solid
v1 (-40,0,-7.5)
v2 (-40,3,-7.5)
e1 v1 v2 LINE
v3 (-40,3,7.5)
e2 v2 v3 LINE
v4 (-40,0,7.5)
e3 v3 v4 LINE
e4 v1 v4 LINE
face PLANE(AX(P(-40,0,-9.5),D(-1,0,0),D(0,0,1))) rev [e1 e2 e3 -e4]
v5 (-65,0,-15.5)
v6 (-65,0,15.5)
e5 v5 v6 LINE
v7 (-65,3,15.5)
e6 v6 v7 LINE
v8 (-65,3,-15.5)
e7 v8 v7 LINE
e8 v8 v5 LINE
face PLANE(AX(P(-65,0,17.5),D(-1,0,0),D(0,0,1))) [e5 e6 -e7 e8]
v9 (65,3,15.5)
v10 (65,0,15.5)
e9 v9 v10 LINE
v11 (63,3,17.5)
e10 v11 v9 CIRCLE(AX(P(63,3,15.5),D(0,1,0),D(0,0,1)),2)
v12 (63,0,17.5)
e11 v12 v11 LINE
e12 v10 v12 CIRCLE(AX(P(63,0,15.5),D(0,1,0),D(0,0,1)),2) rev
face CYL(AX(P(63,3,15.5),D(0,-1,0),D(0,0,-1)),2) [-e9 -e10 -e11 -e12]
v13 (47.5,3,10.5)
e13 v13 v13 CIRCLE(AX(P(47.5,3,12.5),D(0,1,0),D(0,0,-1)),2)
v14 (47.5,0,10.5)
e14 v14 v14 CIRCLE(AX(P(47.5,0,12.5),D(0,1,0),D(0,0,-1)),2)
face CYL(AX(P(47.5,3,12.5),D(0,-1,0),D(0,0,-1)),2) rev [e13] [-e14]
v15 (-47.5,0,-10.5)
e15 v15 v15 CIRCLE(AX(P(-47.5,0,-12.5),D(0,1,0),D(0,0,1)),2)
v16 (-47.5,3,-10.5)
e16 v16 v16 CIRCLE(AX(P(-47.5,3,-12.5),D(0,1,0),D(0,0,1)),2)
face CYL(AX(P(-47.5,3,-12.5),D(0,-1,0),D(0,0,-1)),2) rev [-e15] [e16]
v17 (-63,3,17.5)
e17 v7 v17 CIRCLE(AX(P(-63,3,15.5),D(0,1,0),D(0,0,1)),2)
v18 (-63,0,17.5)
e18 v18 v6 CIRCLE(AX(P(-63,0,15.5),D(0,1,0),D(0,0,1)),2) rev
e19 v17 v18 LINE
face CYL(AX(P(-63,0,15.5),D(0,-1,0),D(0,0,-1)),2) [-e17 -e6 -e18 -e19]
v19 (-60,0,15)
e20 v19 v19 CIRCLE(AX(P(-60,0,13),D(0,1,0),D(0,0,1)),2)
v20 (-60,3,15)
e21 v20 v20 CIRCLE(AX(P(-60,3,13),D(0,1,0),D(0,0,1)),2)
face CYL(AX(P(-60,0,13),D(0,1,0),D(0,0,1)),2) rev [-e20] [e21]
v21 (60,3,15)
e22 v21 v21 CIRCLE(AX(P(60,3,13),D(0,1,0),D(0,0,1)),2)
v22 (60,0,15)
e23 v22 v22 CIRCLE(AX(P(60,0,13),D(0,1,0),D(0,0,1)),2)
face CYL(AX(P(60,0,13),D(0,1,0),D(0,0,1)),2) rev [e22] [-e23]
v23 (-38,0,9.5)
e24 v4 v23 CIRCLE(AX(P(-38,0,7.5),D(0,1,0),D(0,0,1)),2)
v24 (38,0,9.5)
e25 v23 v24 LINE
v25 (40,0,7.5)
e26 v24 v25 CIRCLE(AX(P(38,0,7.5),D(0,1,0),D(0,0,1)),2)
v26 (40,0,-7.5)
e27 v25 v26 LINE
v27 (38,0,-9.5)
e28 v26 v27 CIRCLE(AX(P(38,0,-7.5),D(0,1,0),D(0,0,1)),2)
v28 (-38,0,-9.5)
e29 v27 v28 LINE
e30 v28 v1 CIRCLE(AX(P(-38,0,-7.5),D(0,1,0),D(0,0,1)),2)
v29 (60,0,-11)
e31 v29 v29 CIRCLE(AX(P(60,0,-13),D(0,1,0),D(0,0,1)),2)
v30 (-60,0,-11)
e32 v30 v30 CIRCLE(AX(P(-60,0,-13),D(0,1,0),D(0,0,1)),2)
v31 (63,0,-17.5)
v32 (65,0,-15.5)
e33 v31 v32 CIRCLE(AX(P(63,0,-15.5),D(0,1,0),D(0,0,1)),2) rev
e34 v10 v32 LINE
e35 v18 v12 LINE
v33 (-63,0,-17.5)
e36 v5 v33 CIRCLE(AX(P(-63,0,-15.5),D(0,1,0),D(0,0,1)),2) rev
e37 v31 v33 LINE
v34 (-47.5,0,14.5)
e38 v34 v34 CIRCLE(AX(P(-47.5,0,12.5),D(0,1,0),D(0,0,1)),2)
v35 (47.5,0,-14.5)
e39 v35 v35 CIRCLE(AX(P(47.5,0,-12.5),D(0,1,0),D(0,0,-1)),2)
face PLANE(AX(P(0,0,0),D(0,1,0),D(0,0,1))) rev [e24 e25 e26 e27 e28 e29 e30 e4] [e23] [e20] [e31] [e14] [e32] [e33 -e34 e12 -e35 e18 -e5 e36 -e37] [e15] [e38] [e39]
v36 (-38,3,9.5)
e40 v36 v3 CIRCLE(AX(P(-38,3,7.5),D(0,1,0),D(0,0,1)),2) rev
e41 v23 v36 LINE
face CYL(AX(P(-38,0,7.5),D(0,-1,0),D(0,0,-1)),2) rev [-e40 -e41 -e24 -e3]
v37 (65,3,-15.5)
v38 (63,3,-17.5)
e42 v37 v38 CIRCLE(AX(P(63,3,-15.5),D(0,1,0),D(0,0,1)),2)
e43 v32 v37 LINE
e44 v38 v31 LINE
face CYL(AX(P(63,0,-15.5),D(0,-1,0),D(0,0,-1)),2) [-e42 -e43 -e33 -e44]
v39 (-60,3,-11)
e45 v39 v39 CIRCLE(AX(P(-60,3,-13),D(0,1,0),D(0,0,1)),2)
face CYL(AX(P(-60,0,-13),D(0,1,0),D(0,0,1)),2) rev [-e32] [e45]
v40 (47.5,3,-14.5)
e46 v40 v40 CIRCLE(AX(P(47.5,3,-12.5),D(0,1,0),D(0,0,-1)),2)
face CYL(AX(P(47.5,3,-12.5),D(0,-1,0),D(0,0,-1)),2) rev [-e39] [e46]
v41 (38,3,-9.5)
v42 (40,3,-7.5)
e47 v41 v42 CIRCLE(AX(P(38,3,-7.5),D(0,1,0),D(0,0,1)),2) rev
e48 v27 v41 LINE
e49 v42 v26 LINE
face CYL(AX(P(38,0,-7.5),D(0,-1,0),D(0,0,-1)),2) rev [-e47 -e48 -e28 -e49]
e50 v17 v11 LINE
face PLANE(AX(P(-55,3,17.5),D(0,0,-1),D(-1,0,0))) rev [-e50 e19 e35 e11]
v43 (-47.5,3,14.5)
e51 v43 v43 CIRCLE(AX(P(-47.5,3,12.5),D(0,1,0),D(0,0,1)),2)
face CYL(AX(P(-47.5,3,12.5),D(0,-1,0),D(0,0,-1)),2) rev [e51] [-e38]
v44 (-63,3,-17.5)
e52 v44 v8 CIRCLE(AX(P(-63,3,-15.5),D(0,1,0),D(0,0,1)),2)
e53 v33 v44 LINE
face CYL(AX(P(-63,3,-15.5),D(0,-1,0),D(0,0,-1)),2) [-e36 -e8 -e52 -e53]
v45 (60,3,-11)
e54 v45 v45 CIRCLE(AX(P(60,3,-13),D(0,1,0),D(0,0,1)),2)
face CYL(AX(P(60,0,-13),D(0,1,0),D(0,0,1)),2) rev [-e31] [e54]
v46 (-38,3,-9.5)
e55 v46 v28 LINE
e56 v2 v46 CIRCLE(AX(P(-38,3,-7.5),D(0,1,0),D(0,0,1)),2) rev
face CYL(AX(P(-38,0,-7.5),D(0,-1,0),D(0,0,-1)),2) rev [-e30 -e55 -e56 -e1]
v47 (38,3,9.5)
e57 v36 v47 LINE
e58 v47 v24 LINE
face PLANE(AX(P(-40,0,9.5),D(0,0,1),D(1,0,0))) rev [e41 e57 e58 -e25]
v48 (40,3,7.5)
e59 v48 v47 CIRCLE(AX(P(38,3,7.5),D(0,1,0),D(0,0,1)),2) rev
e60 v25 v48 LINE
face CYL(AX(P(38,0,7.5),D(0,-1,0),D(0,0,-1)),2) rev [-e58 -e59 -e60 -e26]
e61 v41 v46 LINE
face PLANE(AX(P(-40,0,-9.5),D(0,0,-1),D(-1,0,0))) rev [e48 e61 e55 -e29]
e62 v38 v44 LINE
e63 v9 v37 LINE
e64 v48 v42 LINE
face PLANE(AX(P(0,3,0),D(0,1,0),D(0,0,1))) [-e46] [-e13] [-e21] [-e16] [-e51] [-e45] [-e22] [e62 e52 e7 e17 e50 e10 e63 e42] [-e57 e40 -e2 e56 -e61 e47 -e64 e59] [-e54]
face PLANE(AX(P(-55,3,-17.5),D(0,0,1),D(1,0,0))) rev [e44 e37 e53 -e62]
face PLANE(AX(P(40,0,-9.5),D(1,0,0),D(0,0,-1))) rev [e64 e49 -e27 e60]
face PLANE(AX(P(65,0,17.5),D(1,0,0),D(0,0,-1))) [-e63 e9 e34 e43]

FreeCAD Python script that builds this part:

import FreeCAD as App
import Part
import Sketcher
from FreeCAD import Vector


def edges_at(feature, points):
    """Names of the edges that pass closest to the given points."""
    edges = feature.Shape.Edges
    near = lambda p: min(range(len(edges)), key=lambda i: edges[i].distToShape(Part.Vertex(*p))[0])
    return sorted({f"Edge{near(p) + 1}" for p in points})


def add_polygon(sketch, points):
    """Adds a closed chain of lines whose ends are joined by coincident constraints."""
    first, n = sketch.GeometryCount, len(points)
    for a, b in zip(points, points[1:] + points[:1]):
        sketch.addGeometry(Part.LineSegment(App.Vector(*a, 0), App.Vector(*b, 0)), False)
    for i in range(n):
        sketch.addConstraint(Sketcher.Constraint("Coincident", first + i, 2, first + (i + 1) % n, 1))

doc = App.newDocument("Part")
body = doc.addObject("PartDesign::Body", "Body")

sketch1 = doc.addObject("Sketcher::SketchObject", "Sketch")
body.addObject(sketch1)
sketch1.AttachmentSupport = (doc.XZ_Plane, [""])
sketch1.MapMode = "FlatFace"
add_polygon(sketch1, [(-55, -17.5), (-55, 17.5), (55, 17.5), (55, -17.5)])
sketch1.addGeometry(Part.Circle(Vector(-47.5, 12.5, 0), Vector(0, 0, 1), 2), False)
sketch1.addGeometry(Part.Circle(Vector(47.5, 12.5, 0), Vector(0, 0, 1), 2), False)
sketch1.addGeometry(Part.Circle(Vector(-47.5, -12.5, 0), Vector(0, 0, 1), 2), False)
sketch1.addGeometry(Part.Circle(Vector(47.5, -12.5, 0), Vector(0, 0, 1), 2), False)
sketch1.addConstraint([
    Sketcher.Constraint("Vertical", 0),
    Sketcher.Constraint("Horizontal", 1),
    Sketcher.Constraint("Vertical", 2),
    Sketcher.Constraint("Horizontal", 3),
    Sketcher.Constraint("Equal", 4, 5),
    Sketcher.Constraint("Equal", 5, 6),
    Sketcher.Constraint("Equal", 6, 7),
    Sketcher.Constraint("Symmetric", 5, 3, 6, 3, -1, 1),
    Sketcher.Constraint("Symmetric", 4, 3, 7, 3, -1, 1),
    Sketcher.Constraint("Symmetric", 0, 2, 2, 2, -1, 1),
    Sketcher.Constraint("Symmetric", 4, 3, 5, 3, -2),
    Sketcher.Constraint("Diameter", 4, 4.0),
    Sketcher.Constraint("DistanceX", 1, 1, 1, 2, 110.0),
    Sketcher.Constraint("DistanceY", 0, 1, 0, 2, 35.0),
    Sketcher.Constraint("DistanceX", 4, 3, 5, 3, 95.0),
    Sketcher.Constraint("DistanceY", 6, 3, 4, 3, 25.0),
])
pad1 = doc.addObject("PartDesign::Pad", "Pad")
body.addObject(pad1)
pad1.Profile = sketch1
pad1.Length = 3
pad1.Reversed = True

sketch2 = doc.addObject("Sketcher::SketchObject", "Sketch001")
body.addObject(sketch2)
sketch2.AttachmentSupport = (doc.XZ_Plane, [""])
sketch2.MapMode = "FlatFace"
sketch2.AttachmentOffset = App.Placement(Vector(0, 0, -3), App.Rotation())
add_polygon(sketch2, [(55, -17.5), (55, 17.5), (65, 17.5), (65, -17.5)])
sketch2.addGeometry(Part.Circle(Vector(60, 13, 0), Vector(0, 0, 1), 2), False)
sketch2.addGeometry(Part.Circle(Vector(60, -13, 0), Vector(0, 0, 1), 2), False)
add_polygon(sketch2, [(-65, -17.5), (-65, 17.5), (-55, 17.5), (-55, -17.5)])
sketch2.addGeometry(Part.Circle(Vector(-60, 13, 0), Vector(0, 0, 1), 2), False)
sketch2.addGeometry(Part.Circle(Vector(-60, -13, 0), Vector(0, 0, 1), 2), False)
sketch2.addConstraint([
    Sketcher.Constraint("Vertical", 0),
    Sketcher.Constraint("Horizontal", 1),
    Sketcher.Constraint("Vertical", 2),
    Sketcher.Constraint("Horizontal", 3),
    Sketcher.Constraint("Vertical", 6),
    Sketcher.Constraint("Horizontal", 7),
    Sketcher.Constraint("Vertical", 8),
    Sketcher.Constraint("Horizontal", 9),
    Sketcher.Constraint("Equal", 4, 5),
    Sketcher.Constraint("Equal", 5, 10),
    Sketcher.Constraint("Equal", 10, 11),
    Sketcher.Constraint("Symmetric", 5, 3, 10, 3, -1, 1),
    Sketcher.Constraint("Symmetric", 4, 3, 11, 3, -1, 1),
    Sketcher.Constraint("Symmetric", 2, 2, 6, 2, -1, 1),
    Sketcher.Constraint("Symmetric", 0, 2, 8, 2, -1, 1),
    Sketcher.Constraint("Symmetric", 4, 3, 10, 3, -2),
    Sketcher.Constraint("Horizontal", 1, 2, 6, 2),
    Sketcher.Constraint("Diameter", 4, 4.0),
    Sketcher.Constraint("DistanceX", 1, 1, 1, 2, 10.0),
    Sketcher.Constraint("DistanceY", 0, 1, 0, 2, 35.0),
    Sketcher.Constraint("DistanceX", -1, 1, 4, 3, 60.0),
    Sketcher.Constraint("DistanceY", -1, 1, 4, 3, 13.0),
    Sketcher.Constraint("DistanceX", -1, 1, 0, 2, 55.0),
])
pad2 = doc.addObject("PartDesign::Pad", "Pad001")
body.addObject(pad2)
pad2.Profile = sketch2
pad2.Length = 3

sketch3 = doc.addObject("Sketcher::SketchObject", "Sketch002")
body.addObject(sketch3)
sketch3.AttachmentSupport = (doc.XZ_Plane, [""])
sketch3.MapMode = "FlatFace"
sketch3.AttachmentOffset = App.Placement(Vector(0, 0, -3), App.Rotation())
add_polygon(sketch3, [(-40, -10), (-40, 10), (40, 10), (40, -10)])
sketch3.addConstraint([
    Sketcher.Constraint("Vertical", 0),
    Sketcher.Constraint("Horizontal", 1),
    Sketcher.Constraint("Vertical", 2),
    Sketcher.Constraint("Horizontal", 3),
    Sketcher.Constraint("Symmetric", 0, 2, 2, 2, -1, 1),
    Sketcher.Constraint("DistanceX", 1, 1, 1, 2, 80.0),
    Sketcher.Constraint("DistanceY", 0, 1, 0, 2, 19.0),
])
pocket1 = doc.addObject("PartDesign::Pocket", "Pocket")
body.addObject(pocket1)
pocket1.Profile = sketch3
pocket1.Length = 3
pocket1.Reversed = True
doc.recompute()

fillet = doc.addObject("PartDesign::Fillet", "Fillet")
body.addObject(fillet)
fillet.Base = (pocket1, edges_at(pocket1, [
    (-65, 1.5, -17.5),
    (-65, 1.5, 17.5),
    (65, 1.5, -17.5),
    (65, 1.5, 17.5),
    (40, 1.5, -9.5),
    (40, 1.5, 9.5),
    (-40, 1.5, 9.5),
    (-40, 1.5, -9.5),
]))
fillet.Radius = 2

doc.recompute()
